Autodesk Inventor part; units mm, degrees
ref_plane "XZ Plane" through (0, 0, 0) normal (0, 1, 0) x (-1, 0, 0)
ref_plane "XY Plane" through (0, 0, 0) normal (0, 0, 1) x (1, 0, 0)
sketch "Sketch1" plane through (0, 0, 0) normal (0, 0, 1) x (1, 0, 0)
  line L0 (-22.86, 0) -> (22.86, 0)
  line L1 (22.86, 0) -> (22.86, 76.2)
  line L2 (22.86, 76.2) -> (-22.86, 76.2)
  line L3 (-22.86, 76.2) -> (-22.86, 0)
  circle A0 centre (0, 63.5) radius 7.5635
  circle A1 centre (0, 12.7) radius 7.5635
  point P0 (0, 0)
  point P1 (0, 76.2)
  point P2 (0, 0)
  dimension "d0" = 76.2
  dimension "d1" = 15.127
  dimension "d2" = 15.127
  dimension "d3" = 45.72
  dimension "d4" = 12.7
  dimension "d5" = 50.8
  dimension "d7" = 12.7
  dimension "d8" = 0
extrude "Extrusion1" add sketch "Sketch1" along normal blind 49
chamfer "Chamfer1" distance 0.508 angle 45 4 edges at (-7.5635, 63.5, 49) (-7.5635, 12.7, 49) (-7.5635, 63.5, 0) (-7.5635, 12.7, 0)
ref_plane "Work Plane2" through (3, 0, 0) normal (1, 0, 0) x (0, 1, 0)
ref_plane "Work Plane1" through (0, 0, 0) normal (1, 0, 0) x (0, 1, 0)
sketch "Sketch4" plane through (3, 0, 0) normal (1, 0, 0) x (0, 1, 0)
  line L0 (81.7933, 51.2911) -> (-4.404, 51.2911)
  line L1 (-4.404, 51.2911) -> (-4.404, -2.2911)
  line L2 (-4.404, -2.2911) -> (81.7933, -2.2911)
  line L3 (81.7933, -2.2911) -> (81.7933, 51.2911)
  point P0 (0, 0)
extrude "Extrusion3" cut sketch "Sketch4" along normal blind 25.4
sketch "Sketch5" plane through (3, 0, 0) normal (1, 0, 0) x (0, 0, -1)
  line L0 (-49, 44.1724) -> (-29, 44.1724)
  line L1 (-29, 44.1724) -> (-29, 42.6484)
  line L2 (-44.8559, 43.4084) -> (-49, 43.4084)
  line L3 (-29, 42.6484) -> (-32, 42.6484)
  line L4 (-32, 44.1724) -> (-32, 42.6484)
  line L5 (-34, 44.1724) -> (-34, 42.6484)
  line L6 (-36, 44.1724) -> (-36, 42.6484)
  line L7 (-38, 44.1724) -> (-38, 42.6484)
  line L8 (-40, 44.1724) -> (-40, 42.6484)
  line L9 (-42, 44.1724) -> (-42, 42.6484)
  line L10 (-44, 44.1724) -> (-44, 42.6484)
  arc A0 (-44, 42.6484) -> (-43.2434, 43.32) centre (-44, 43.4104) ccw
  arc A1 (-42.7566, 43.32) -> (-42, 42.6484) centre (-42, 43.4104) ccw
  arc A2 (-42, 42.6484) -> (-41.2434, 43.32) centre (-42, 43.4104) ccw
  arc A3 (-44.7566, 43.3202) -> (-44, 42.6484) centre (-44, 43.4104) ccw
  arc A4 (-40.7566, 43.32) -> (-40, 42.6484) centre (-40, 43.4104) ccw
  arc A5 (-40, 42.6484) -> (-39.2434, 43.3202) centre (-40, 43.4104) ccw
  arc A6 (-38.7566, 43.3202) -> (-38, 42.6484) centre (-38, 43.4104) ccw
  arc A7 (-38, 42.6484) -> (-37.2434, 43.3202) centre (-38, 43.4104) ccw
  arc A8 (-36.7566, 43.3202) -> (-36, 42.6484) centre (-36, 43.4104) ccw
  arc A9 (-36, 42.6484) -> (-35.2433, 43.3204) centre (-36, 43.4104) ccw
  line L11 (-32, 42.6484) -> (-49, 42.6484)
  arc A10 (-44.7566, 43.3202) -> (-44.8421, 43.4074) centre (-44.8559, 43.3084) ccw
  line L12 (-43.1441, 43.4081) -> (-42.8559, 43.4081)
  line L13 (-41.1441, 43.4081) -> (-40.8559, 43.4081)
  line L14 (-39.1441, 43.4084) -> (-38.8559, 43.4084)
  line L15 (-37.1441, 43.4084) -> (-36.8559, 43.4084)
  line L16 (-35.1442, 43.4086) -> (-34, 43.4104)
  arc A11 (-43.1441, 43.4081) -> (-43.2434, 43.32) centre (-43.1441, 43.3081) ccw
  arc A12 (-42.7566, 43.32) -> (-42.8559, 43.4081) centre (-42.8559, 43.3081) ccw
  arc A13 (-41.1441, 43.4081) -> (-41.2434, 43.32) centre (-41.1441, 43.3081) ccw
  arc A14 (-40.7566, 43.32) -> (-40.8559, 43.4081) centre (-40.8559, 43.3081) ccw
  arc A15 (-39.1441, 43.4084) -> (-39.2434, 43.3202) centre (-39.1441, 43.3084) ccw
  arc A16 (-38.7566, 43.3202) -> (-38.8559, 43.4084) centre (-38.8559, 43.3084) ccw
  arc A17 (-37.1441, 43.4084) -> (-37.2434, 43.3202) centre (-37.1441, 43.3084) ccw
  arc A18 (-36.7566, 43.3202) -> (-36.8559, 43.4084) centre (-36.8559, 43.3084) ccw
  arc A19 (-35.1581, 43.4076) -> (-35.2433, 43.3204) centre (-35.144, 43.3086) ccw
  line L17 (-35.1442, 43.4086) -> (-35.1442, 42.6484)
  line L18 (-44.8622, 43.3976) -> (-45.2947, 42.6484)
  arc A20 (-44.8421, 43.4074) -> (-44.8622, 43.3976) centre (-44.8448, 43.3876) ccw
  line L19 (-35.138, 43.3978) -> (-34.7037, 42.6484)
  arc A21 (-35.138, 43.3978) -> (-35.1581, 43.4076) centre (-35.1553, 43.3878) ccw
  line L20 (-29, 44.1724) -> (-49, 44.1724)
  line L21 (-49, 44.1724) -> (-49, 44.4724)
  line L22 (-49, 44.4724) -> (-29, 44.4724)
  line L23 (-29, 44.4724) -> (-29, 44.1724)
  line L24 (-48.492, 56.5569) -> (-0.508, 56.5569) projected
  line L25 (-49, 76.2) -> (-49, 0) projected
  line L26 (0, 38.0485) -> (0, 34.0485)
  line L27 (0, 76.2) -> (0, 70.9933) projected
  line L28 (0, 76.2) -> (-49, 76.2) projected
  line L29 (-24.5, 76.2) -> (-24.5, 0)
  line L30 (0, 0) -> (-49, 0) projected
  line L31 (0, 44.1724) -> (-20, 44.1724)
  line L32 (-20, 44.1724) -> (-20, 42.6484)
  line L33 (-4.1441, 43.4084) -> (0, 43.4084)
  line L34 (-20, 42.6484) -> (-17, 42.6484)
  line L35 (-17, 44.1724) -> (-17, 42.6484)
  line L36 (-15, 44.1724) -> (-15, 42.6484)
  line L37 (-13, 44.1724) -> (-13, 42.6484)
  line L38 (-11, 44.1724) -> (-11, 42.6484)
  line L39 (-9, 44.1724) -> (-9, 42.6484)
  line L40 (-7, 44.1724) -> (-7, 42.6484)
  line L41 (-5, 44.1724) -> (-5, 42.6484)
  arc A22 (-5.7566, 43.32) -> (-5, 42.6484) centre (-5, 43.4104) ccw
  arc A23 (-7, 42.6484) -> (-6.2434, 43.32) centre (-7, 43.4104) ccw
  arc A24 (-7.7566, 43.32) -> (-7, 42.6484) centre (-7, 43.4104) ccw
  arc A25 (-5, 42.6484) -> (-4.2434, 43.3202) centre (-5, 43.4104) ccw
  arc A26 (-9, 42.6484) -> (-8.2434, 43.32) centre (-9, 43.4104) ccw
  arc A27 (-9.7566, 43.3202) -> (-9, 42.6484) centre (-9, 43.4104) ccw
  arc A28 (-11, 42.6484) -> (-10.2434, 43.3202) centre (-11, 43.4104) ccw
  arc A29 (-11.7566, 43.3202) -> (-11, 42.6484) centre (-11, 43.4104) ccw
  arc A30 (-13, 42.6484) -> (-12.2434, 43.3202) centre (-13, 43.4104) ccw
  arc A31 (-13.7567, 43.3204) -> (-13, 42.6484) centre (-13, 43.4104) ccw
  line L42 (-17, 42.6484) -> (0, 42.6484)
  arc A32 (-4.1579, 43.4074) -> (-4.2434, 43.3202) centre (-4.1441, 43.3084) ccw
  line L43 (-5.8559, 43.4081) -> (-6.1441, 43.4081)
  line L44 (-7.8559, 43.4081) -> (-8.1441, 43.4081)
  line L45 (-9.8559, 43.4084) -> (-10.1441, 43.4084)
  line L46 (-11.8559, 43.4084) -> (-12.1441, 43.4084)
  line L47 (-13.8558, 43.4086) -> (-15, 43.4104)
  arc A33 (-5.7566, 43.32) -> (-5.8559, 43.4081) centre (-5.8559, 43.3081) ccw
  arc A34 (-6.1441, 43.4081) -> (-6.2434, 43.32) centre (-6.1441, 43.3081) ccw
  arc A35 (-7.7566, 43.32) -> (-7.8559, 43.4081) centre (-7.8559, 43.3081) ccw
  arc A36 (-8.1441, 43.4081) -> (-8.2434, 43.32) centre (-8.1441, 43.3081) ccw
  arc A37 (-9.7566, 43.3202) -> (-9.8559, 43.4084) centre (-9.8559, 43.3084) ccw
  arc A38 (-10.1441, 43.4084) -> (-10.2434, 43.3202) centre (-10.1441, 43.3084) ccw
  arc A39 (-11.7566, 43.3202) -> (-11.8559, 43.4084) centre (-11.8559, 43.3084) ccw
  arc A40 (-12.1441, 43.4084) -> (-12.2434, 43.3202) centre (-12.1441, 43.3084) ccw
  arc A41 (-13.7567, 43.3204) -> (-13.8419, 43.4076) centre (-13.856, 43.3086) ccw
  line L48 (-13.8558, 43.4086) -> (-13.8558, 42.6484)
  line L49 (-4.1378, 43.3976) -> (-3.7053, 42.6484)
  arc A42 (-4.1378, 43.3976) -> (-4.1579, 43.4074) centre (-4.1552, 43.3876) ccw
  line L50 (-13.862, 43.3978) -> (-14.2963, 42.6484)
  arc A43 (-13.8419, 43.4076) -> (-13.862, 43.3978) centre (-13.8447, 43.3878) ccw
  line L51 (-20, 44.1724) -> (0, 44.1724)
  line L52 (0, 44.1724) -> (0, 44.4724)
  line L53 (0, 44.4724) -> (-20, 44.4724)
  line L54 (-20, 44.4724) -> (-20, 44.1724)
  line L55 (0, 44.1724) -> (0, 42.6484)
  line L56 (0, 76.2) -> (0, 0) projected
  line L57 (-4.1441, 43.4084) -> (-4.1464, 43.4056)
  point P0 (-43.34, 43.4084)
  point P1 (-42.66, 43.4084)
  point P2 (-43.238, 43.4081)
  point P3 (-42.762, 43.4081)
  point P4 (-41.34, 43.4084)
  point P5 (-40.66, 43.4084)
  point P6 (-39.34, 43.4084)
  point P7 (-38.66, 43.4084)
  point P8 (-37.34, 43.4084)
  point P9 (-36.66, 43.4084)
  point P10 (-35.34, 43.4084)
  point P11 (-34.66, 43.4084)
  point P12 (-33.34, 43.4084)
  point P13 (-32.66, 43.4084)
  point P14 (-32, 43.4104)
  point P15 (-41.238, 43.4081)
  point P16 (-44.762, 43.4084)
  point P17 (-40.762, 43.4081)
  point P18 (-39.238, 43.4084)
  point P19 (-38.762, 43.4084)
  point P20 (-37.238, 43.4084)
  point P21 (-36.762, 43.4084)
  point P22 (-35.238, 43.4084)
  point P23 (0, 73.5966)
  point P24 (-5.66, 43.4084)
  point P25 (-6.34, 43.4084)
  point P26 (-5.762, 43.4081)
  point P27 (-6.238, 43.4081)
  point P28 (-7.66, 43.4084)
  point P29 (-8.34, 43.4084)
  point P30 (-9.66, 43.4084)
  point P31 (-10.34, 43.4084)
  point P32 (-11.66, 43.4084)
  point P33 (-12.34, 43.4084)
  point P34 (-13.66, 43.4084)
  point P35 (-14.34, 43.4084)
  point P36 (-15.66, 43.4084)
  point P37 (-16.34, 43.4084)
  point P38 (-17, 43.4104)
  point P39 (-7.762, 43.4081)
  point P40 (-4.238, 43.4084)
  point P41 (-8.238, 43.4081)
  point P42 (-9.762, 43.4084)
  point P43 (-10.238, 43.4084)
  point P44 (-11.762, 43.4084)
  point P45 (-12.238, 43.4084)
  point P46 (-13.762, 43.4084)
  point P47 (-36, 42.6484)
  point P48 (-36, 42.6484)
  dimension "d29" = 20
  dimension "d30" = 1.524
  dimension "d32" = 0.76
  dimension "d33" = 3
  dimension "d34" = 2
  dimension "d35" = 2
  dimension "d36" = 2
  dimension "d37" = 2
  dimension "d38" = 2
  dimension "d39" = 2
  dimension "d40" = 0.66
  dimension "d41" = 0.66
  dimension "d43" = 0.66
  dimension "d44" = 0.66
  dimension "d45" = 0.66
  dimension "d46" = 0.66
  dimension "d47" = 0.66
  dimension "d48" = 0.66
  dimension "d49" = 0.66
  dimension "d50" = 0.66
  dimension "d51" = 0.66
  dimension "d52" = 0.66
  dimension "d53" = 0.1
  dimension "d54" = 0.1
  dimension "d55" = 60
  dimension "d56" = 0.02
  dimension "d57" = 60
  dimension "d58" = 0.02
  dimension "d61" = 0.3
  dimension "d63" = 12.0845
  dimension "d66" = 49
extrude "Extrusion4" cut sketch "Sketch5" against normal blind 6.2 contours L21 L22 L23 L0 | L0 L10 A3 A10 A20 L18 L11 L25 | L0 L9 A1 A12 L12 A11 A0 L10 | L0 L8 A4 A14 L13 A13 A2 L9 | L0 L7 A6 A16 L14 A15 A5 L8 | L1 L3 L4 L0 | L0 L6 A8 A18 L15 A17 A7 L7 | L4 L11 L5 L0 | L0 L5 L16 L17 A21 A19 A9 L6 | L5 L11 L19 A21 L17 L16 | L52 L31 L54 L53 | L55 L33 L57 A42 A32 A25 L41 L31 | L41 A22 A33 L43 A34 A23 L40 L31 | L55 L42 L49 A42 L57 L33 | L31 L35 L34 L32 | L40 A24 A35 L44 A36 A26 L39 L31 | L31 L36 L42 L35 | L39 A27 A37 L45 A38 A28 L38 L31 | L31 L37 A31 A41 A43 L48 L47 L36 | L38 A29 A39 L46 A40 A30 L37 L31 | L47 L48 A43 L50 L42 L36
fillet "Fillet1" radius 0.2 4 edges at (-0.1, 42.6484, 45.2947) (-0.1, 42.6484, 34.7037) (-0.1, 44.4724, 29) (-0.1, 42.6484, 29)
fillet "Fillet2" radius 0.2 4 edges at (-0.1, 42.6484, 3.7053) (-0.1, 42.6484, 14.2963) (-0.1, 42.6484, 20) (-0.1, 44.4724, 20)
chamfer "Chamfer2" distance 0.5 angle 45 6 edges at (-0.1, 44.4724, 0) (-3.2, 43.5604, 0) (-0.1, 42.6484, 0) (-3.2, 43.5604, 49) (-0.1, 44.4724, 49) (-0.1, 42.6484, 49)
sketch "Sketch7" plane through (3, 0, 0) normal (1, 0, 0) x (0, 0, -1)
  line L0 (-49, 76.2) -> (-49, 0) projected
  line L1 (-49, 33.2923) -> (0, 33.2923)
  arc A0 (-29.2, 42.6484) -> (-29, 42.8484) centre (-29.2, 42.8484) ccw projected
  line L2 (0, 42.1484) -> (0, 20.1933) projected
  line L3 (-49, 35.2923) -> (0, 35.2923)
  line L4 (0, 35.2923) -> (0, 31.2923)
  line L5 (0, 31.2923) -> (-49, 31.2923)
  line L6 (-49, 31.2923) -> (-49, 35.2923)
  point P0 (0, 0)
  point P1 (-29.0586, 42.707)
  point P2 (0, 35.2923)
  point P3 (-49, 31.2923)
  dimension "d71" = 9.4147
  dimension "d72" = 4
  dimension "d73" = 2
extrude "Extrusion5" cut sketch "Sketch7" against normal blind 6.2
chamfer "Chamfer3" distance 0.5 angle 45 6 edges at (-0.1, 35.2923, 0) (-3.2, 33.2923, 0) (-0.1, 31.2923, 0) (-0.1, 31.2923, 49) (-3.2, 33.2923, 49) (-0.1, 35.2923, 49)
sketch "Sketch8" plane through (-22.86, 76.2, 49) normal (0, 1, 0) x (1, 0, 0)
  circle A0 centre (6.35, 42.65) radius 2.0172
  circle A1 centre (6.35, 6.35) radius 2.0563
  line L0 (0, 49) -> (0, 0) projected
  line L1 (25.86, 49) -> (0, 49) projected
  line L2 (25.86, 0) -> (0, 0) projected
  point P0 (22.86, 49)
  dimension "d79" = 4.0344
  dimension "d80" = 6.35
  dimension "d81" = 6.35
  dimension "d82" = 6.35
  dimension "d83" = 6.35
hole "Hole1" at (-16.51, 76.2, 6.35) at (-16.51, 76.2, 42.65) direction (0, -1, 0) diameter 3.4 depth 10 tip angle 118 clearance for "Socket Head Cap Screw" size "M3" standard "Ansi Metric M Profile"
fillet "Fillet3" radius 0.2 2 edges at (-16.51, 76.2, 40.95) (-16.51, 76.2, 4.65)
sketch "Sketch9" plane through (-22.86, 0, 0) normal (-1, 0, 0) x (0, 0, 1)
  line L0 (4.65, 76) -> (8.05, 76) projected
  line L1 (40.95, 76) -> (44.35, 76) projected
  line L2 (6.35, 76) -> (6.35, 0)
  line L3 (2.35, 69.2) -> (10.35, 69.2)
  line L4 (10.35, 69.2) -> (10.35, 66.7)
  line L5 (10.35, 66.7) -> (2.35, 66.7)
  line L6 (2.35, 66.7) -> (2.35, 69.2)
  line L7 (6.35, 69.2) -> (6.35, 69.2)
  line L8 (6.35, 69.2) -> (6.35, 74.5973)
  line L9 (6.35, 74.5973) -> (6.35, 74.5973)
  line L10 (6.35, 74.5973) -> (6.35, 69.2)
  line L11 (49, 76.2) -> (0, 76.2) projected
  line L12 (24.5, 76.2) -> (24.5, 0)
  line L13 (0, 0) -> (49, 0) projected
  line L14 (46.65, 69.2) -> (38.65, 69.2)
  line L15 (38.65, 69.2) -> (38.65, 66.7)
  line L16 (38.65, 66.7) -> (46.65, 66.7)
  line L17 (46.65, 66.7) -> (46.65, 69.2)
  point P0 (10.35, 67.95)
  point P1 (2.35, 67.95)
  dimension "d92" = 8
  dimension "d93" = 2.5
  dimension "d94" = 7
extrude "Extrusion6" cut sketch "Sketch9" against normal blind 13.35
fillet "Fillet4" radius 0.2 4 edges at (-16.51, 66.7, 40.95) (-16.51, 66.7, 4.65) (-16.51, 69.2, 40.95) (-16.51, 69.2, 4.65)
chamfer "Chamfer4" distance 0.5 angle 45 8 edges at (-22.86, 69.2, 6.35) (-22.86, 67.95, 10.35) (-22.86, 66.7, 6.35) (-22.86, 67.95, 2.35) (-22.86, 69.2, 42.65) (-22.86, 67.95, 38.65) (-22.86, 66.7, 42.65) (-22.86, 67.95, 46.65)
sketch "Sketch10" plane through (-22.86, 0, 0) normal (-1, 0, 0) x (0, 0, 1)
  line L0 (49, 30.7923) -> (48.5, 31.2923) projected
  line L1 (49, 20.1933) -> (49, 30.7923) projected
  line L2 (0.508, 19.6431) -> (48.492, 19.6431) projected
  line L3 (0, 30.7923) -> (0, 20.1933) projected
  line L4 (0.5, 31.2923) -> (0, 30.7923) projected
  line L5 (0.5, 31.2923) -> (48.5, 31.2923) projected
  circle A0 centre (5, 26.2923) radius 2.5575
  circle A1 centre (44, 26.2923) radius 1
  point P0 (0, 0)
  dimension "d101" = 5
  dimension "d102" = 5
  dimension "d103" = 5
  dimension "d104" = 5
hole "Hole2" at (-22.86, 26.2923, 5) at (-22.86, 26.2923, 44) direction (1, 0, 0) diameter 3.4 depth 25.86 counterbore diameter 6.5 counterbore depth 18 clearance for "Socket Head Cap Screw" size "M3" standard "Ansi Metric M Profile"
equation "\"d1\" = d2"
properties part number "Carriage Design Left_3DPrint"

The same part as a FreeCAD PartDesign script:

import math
import FreeCAD as App
import Part
import Sketcher

V = App.Vector


def edges_at(feature, points):
    """Names of the edges that pass closest to the given points."""
    edges = feature.Shape.Edges
    near = lambda p: min(range(len(edges)), key=lambda i: edges[i].distToShape(Part.Vertex(*p))[0])
    return sorted({f"Edge{near(p) + 1}" for p in points})


def add_polygon(sketch, points):
    """Adds a closed chain of lines whose ends are joined by coincident constraints."""
    first, n = sketch.GeometryCount, len(points)
    for a, b in zip(points, points[1:] + points[:1]):
        sketch.addGeometry(Part.LineSegment(App.Vector(*a, 0), App.Vector(*b, 0)), False)
    for i in range(n):
        sketch.addConstraint(Sketcher.Constraint("Coincident", first + i, 2, first + (i + 1) % n, 1))

doc = App.newDocument("Part")
body = doc.addObject("PartDesign::Body", "Body")

# Sketch on XY plane
sketch1 = body.newObject("Sketcher::SketchObject", "Sketch")
sketch1.AttachmentSupport = (doc.getObject("XY_Plane"), [""])
sketch1.MapMode = "FlatFace"
add_polygon(sketch1, [(-23, 76), (-23, 0), (23, 0), (23, 76)])  # lines 0-3
sketch1.addGeometry(Part.Circle(V(0, 13, 0), V(0, 0, 1), 8), False)  # 4
sketch1.addGeometry(Part.Circle(V(0, 64, 0), V(0, 0, 1), 8), False)  # 5
sketch1.addConstraint(Sketcher.Constraint("Vertical", 0))
sketch1.addConstraint(Sketcher.Constraint("Horizontal", 1))
sketch1.addConstraint(Sketcher.Constraint("Vertical", 2))
sketch1.addConstraint(Sketcher.Constraint("Horizontal", 3))
sketch1.addConstraint(Sketcher.Constraint("Equal", 4, 5))
sketch1.addConstraint(Sketcher.Constraint("Symmetric", 0, 2, 1, 2, -1, 1))
sketch1.addConstraint(Sketcher.Constraint("PointOnObject", 4, 3, -2))
sketch1.addConstraint(Sketcher.Constraint("PointOnObject", 5, 3, -2))
sketch1.addConstraint(Sketcher.Constraint("Diameter", 4, 15.127))
sketch1.addConstraint(Sketcher.Constraint("DistanceY", 0, 2, 0, 1, 76.2))
sketch1.addConstraint(Sketcher.Constraint("DistanceX", 1, 1, 1, 2, 45.72))
sketch1.addConstraint(Sketcher.Constraint("DistanceY", -1, 1, 4, 3, 12.7))
sketch1.addConstraint(Sketcher.Constraint("DistanceY", 4, 3, 5, 3, 50.8))
pad1 = body.newObject("PartDesign::Pad", "Pad")
pad1.Profile = sketch1
pad1.Length = 49
doc.recompute()

chamfer = body.newObject("PartDesign::Chamfer", "Chamfer")
chamfer.Base = (pad1, edges_at(pad1, [
    (-7.564, 63.5, 49),
    (-7.564, 12.7, 49),
    (-7.564, 63.5, 0),
    (-7.564, 12.7, 0),
]))
chamfer.Size = 0.508

# Sketch on YZ plane
sketch2 = body.newObject("Sketcher::SketchObject", "Sketch001")
sketch2.AttachmentSupport = (doc.getObject("YZ_Plane"), [""])
sketch2.MapMode = "FlatFace"
sketch2.AttachmentOffset = App.Placement(V(0, 0, 3), App.Rotation())
add_polygon(sketch2, [(82, -2), (82, 51), (-4, 51), (-4, -2)])  # lines 0-3
sketch2.addConstraint(Sketcher.Constraint("Vertical", 0))
sketch2.addConstraint(Sketcher.Constraint("Horizontal", 1))
sketch2.addConstraint(Sketcher.Constraint("Vertical", 2))
sketch2.addConstraint(Sketcher.Constraint("Horizontal", 3))
sketch2.addConstraint(Sketcher.Constraint("DistanceX", 1, 2, 1, 1, 86.1973))
sketch2.addConstraint(Sketcher.Constraint("DistanceY", 0, 1, 0, 2, 53.5822))
sketch2.addConstraint(Sketcher.Constraint("DistanceY", -1, 1, 0, 2, 51.291))
sketch2.addConstraint(Sketcher.Constraint("DistanceX", 1, 2, -1, 1, 4.404))
pocket1 = body.newObject("PartDesign::Pocket", "Pocket")
pocket1.Profile = sketch2
pocket1.Length = 25.4
pocket1.Reversed = True

# Sketch on YZ plane
sketch3 = body.newObject("Sketcher::SketchObject", "Sketch002")
sketch3.AttachmentSupport = (doc.getObject("YZ_Plane"), [""])
sketch3.MapMode = "FlatFace"
sketch3.AttachmentOffset = App.Placement(V(0, 0, 3), App.Rotation())
sketch3.addGeometry(Part.LineSegment(V(44.472, 49, 0), V(42.648, 49, 0)), False)
sketch3.addGeometry(Part.LineSegment(V(42.648, 49, 0), V(42.648, 45.295, 0)), False)
sketch3.addGeometry(Part.LineSegment(V(42.648, 45.295, 0), V(43.398, 44.862, 0)), False)
sketch3.addGeometry(Part.ArcOfCircle(Part.Circle(V(43.388, 44.845, 0), V(0, 0, 1), 0.02), math.radians(-8), math.radians(60)), False)
sketch3.addGeometry(Part.ArcOfCircle(Part.Circle(V(43.308, 44.856, 0), V(0, 0, 1), 0.1), math.radians(-83), math.radians(-8)), False)
sketch3.addGeometry(Part.ArcOfCircle(Part.Circle(V(43.41, 44, 0), V(0, 0, 1), 0.762), math.radians(97), math.radians(180)), False)
sketch3.addGeometry(Part.ArcOfCircle(Part.Circle(V(43.41, 44, 0), V(0, 0, 1), 0.762), math.radians(180), math.radians(263)), False)
sketch3.addGeometry(Part.ArcOfCircle(Part.Circle(V(43.308, 43.144, 0), V(0, 0, 1), 0.1), math.radians(0), math.radians(83)), False)
sketch3.addGeometry(Part.LineSegment(V(43.408, 43.144, 0), V(43.408, 42.856, 0)), False)
sketch3.addGeometry(Part.ArcOfCircle(Part.Circle(V(43.308, 42.856, 0), V(0, 0, 1), 0.1), math.radians(-83), math.radians(0)), False)
sketch3.addGeometry(Part.ArcOfCircle(Part.Circle(V(43.41, 42, 0), V(0, 0, 1), 0.762), math.radians(97), math.radians(180)), False)
sketch3.addGeometry(Part.ArcOfCircle(Part.Circle(V(43.41, 42, 0), V(0, 0, 1), 0.762), math.radians(180), math.radians(263)), False)
sketch3.addGeometry(Part.ArcOfCircle(Part.Circle(V(43.308, 41.144, 0), V(0, 0, 1), 0.1), math.radians(0), math.radians(83)), False)
sketch3.addGeometry(Part.LineSegment(V(43.408, 41.144, 0), V(43.408, 40.856, 0)), False)
sketch3.addGeometry(Part.ArcOfCircle(Part.Circle(V(43.308, 40.856, 0), V(0, 0, 1), 0.1), math.radians(-83), math.radians(0)), False)
sketch3.addGeometry(Part.ArcOfCircle(Part.Circle(V(43.41, 40, 0), V(0, 0, 1), 0.762), math.radians(97), math.radians(180)), False)
sketch3.addGeometry(Part.ArcOfCircle(Part.Circle(V(43.41, 40, 0), V(0, 0, 1), 0.762), math.radians(180), math.radians(263)), False)
sketch3.addGeometry(Part.ArcOfCircle(Part.Circle(V(43.308, 39.144, 0), V(0, 0, 1), 0.1), math.radians(0), math.radians(83)), False)
sketch3.addGeometry(Part.LineSegment(V(43.408, 39.144, 0), V(43.408, 38.856, 0)), False)
sketch3.addGeometry(Part.ArcOfCircle(Part.Circle(V(43.308, 38.856, 0), V(0, 0, 1), 0.1), math.radians(-83), math.radians(0)), False)
sketch3.addGeometry(Part.ArcOfCircle(Part.Circle(V(43.41, 38, 0), V(0, 0, 1), 0.762), math.radians(97), math.radians(180)), False)
sketch3.addGeometry(Part.ArcOfCircle(Part.Circle(V(43.41, 38, 0), V(0, 0, 1), 0.762), math.radians(180), math.radians(263)), False)
sketch3.addGeometry(Part.ArcOfCircle(Part.Circle(V(43.308, 37.144, 0), V(0, 0, 1), 0.1), math.radians(0), math.radians(83)), False)
sketch3.addGeometry(Part.LineSegment(V(43.408, 37.144, 0), V(43.408, 36.856, 0)), False)
sketch3.addGeometry(Part.ArcOfCircle(Part.Circle(V(43.308, 36.856, 0), V(0, 0, 1), 0.1), math.radians(-83), math.radians(0)), False)
sketch3.addGeometry(Part.ArcOfCircle(Part.Circle(V(43.41, 36, 0), V(0, 0, 1), 0.762), math.radians(97), math.radians(180)), False)
sketch3.addGeometry(Part.ArcOfCircle(Part.Circle(V(43.41, 36, 0), V(0, 0, 1), 0.762), math.radians(180), math.radians(263)), False)
sketch3.addGeometry(Part.ArcOfCircle(Part.Circle(V(43.309, 35.144, 0), V(0, 0, 1), 0.1), math.radians(8), math.radians(83)), False)
sketch3.addGeometry(Part.ArcOfCircle(Part.Circle(V(43.388, 35.155, 0), V(0, 0, 1), 0.02), math.radians(-60), math.radians(8)), False)
sketch3.addGeometry(Part.LineSegment(V(43.398, 35.138, 0), V(42.648, 34.704, 0)), False)
sketch3.addGeometry(Part.LineSegment(V(42.648, 34.704, 0), V(42.648, 29, 0)), False)
sketch3.addGeometry(Part.LineSegment(V(42.648, 29, 0), V(44.472, 29, 0)), False)
sketch3.addGeometry(Part.LineSegment(V(44.472, 29, 0), V(44.472, 49, 0)), False)
sketch3.addGeometry(Part.LineSegment(V(44.472, 0, 0), V(44.472, 20, 0)), False)
sketch3.addGeometry(Part.LineSegment(V(44.472, 20, 0), V(42.648, 20, 0)), False)
sketch3.addGeometry(Part.LineSegment(V(42.648, 20, 0), V(42.648, 14.296, 0)), False)
sketch3.addGeometry(Part.LineSegment(V(42.648, 14.296, 0), V(43.398, 13.862, 0)), False)
sketch3.addGeometry(Part.ArcOfCircle(Part.Circle(V(43.388, 13.845, 0), V(0, 0, 1), 0.02), math.radians(-8), math.radians(60)), False)
sketch3.addGeometry(Part.ArcOfCircle(Part.Circle(V(43.309, 13.856, 0), V(0, 0, 1), 0.1), math.radians(-83), math.radians(-8)), False)
sketch3.addGeometry(Part.ArcOfCircle(Part.Circle(V(43.41, 13, 0), V(0, 0, 1), 0.762), math.radians(97), math.radians(180)), False)
sketch3.addGeometry(Part.ArcOfCircle(Part.Circle(V(43.41, 13, 0), V(0, 0, 1), 0.762), math.radians(180), math.radians(263)), False)
sketch3.addGeometry(Part.ArcOfCircle(Part.Circle(V(43.308, 12.144, 0), V(0, 0, 1), 0.1), math.radians(0), math.radians(83)), False)
sketch3.addGeometry(Part.LineSegment(V(43.408, 12.144, 0), V(43.408, 11.856, 0)), False)
sketch3.addGeometry(Part.ArcOfCircle(Part.Circle(V(43.308, 11.856, 0), V(0, 0, 1), 0.1), math.radians(-83), math.radians(0)), False)
sketch3.addGeometry(Part.ArcOfCircle(Part.Circle(V(43.41, 11, 0), V(0, 0, 1), 0.762), math.radians(97), math.radians(180)), False)
sketch3.addGeometry(Part.ArcOfCircle(Part.Circle(V(43.41, 11, 0), V(0, 0, 1), 0.762), math.radians(180), math.radians(263)), False)
sketch3.addGeometry(Part.ArcOfCircle(Part.Circle(V(43.308, 10.144, 0), V(0, 0, 1), 0.1), math.radians(0), math.radians(83)), False)
sketch3.addGeometry(Part.LineSegment(V(43.408, 10.144, 0), V(43.408, 9.856, 0)), False)
sketch3.addGeometry(Part.ArcOfCircle(Part.Circle(V(43.308, 9.856, 0), V(0, 0, 1), 0.1), math.radians(-83), math.radians(0)), False)
sketch3.addGeometry(Part.ArcOfCircle(Part.Circle(V(43.41, 9, 0), V(0, 0, 1), 0.762), math.radians(97), math.radians(180)), False)
sketch3.addGeometry(Part.ArcOfCircle(Part.Circle(V(43.41, 9, 0), V(0, 0, 1), 0.762), math.radians(180), math.radians(263)), False)
sketch3.addGeometry(Part.ArcOfCircle(Part.Circle(V(43.308, 8.144, 0), V(0, 0, 1), 0.1), math.radians(0), math.radians(83)), False)
sketch3.addGeometry(Part.LineSegment(V(43.408, 8.144, 0), V(43.408, 7.856, 0)), False)
sketch3.addGeometry(Part.ArcOfCircle(Part.Circle(V(43.308, 7.856, 0), V(0, 0, 1), 0.1), math.radians(-83), math.radians(0)), False)
sketch3.addGeometry(Part.ArcOfCircle(Part.Circle(V(43.41, 7, 0), V(0, 0, 1), 0.762), math.radians(97), math.radians(180)), False)
sketch3.addGeometry(Part.ArcOfCircle(Part.Circle(V(43.41, 7, 0), V(0, 0, 1), 0.762), math.radians(180), math.radians(263)), False)
sketch3.addGeometry(Part.ArcOfCircle(Part.Circle(V(43.308, 6.144, 0), V(0, 0, 1), 0.1), math.radians(0), math.radians(83)), False)
sketch3.addGeometry(Part.LineSegment(V(43.408, 6.144, 0), V(43.408, 5.856, 0)), False)
sketch3.addGeometry(Part.ArcOfCircle(Part.Circle(V(43.308, 5.856, 0), V(0, 0, 1), 0.1), math.radians(-83), math.radians(0)), False)
sketch3.addGeometry(Part.ArcOfCircle(Part.Circle(V(43.41, 5, 0), V(0, 0, 1), 0.762), math.radians(97), math.radians(180)), False)
sketch3.addGeometry(Part.ArcOfCircle(Part.Circle(V(43.41, 5, 0), V(0, 0, 1), 0.762), math.radians(180), math.radians(263)), False)
sketch3.addGeometry(Part.ArcOfCircle(Part.Circle(V(43.308, 4.144, 0), V(0, 0, 1), 0.1), math.radians(8), math.radians(83)), False)
sketch3.addGeometry(Part.ArcOfCircle(Part.Circle(V(43.388, 4.155, 0), V(0, 0, 1), 0.02), math.radians(-60), math.radians(8)), False)
sketch3.addGeometry(Part.LineSegment(V(43.398, 4.138, 0), V(42.648, 3.705, 0)), False)
sketch3.addGeometry(Part.LineSegment(V(42.648, 3.705, 0), V(42.648, 0, 0)), False)
sketch3.addGeometry(Part.LineSegment(V(42.648, 0, 0), V(44.472, 0, 0)), False)
sketch3.addConstraint(Sketcher.Constraint("Coincident", 0, 2, 1, 1))
sketch3.addConstraint(Sketcher.Constraint("Coincident", 1, 2, 2, 1))
sketch3.addConstraint(Sketcher.Constraint("Coincident", 2, 2, 3, 2))
sketch3.addConstraint(Sketcher.Constraint("Coincident", 3, 1, 4, 2))
sketch3.addConstraint(Sketcher.Constraint("Tangent", 4, 1, 5, 1))
sketch3.addConstraint(Sketcher.Constraint("Tangent", 5, 2, 6, 1))
sketch3.addConstraint(Sketcher.Constraint("Tangent", 6, 2, 7, 2))
sketch3.addConstraint(Sketcher.Constraint("Tangent", 7, 1, 8, 1))
sketch3.addConstraint(Sketcher.Constraint("Tangent", 8, 2, 9, 2))
sketch3.addConstraint(Sketcher.Constraint("Tangent", 9, 1, 10, 1))
sketch3.addConstraint(Sketcher.Constraint("Tangent", 10, 2, 11, 1))
sketch3.addConstraint(Sketcher.Constraint("Tangent", 11, 2, 12, 2))
sketch3.addConstraint(Sketcher.Constraint("Tangent", 12, 1, 13, 1))
sketch3.addConstraint(Sketcher.Constraint("Tangent", 13, 2, 14, 2))
sketch3.addConstraint(Sketcher.Constraint("Tangent", 14, 1, 15, 1))
sketch3.addConstraint(Sketcher.Constraint("Tangent", 15, 2, 16, 1))
sketch3.addConstraint(Sketcher.Constraint("Tangent", 16, 2, 17, 2))
sketch3.addConstraint(Sketcher.Constraint("Tangent", 17, 1, 18, 1))
sketch3.addConstraint(Sketcher.Constraint("Tangent", 18, 2, 19, 2))
sketch3.addConstraint(Sketcher.Constraint("Tangent", 19, 1, 20, 1))
sketch3.addConstraint(Sketcher.Constraint("Tangent", 20, 2, 21, 1))
sketch3.addConstraint(Sketcher.Constraint("Tangent", 21, 2, 22, 2))
sketch3.addConstraint(Sketcher.Constraint("Tangent", 22, 1, 23, 1))
sketch3.addConstraint(Sketcher.Constraint("Tangent", 23, 2, 24, 2))
sketch3.addConstraint(Sketcher.Constraint("Tangent", 24, 1, 25, 1))
sketch3.addConstraint(Sketcher.Constraint("Tangent", 25, 2, 26, 1))
sketch3.addConstraint(Sketcher.Constraint("Tangent", 26, 2, 27, 2))
sketch3.addConstraint(Sketcher.Constraint("Coincident", 27, 1, 28, 2))
sketch3.addConstraint(Sketcher.Constraint("Coincident", 28, 1, 29, 1))
sketch3.addConstraint(Sketcher.Constraint("Coincident", 29, 2, 30, 1))
sketch3.addConstraint(Sketcher.Constraint("Coincident", 30, 2, 31, 1))
sketch3.addConstraint(Sketcher.Constraint("Coincident", 31, 2, 32, 1))
sketch3.addConstraint(Sketcher.Constraint("Coincident", 32, 2, 0, 1))
sketch3.addConstraint(Sketcher.Constraint("Coincident", 33, 2, 34, 1))
sketch3.addConstraint(Sketcher.Constraint("Coincident", 34, 2, 35, 1))
sketch3.addConstraint(Sketcher.Constraint("Coincident", 35, 2, 36, 1))
sketch3.addConstraint(Sketcher.Constraint("Coincident", 36, 2, 37, 2))
sketch3.addConstraint(Sketcher.Constraint("Coincident", 37, 1, 38, 2))
sketch3.addConstraint(Sketcher.Constraint("Tangent", 38, 1, 39, 1))
sketch3.addConstraint(Sketcher.Constraint("Tangent", 39, 2, 40, 1))
sketch3.addConstraint(Sketcher.Constraint("Tangent", 40, 2, 41, 2))
sketch3.addConstraint(Sketcher.Constraint("Tangent", 41, 1, 42, 1))
sketch3.addConstraint(Sketcher.Constraint("Tangent", 42, 2, 43, 2))
sketch3.addConstraint(Sketcher.Constraint("Tangent", 43, 1, 44, 1))
sketch3.addConstraint(Sketcher.Constraint("Tangent", 44, 2, 45, 1))
sketch3.addConstraint(Sketcher.Constraint("Tangent", 45, 2, 46, 2))
sketch3.addConstraint(Sketcher.Constraint("Tangent", 46, 1, 47, 1))
sketch3.addConstraint(Sketcher.Constraint("Tangent", 47, 2, 48, 2))
sketch3.addConstraint(Sketcher.Constraint("Tangent", 48, 1, 49, 1))
sketch3.addConstraint(Sketcher.Constraint("Tangent", 49, 2, 50, 1))
sketch3.addConstraint(Sketcher.Constraint("Tangent", 50, 2, 51, 2))
sketch3.addConstraint(Sketcher.Constraint("Tangent", 51, 1, 52, 1))
sketch3.addConstraint(Sketcher.Constraint("Tangent", 52, 2, 53, 2))
sketch3.addConstraint(Sketcher.Constraint("Tangent", 53, 1, 54, 1))
sketch3.addConstraint(Sketcher.Constraint("Tangent", 54, 2, 55, 1))
sketch3.addConstraint(Sketcher.Constraint("Tangent", 55, 2, 56, 2))
sketch3.addConstraint(Sketcher.Constraint("Tangent", 56, 1, 57, 1))
sketch3.addConstraint(Sketcher.Constraint("Tangent", 57, 2, 58, 2))
sketch3.addConstraint(Sketcher.Constraint("Tangent", 58, 1, 59, 1))
sketch3.addConstraint(Sketcher.Constraint("Tangent", 59, 2, 60, 1))
sketch3.addConstraint(Sketcher.Constraint("Tangent", 60, 2, 61, 2))
sketch3.addConstraint(Sketcher.Constraint("Coincident", 61, 1, 62, 2))
sketch3.addConstraint(Sketcher.Constraint("Coincident", 62, 1, 63, 1))
sketch3.addConstraint(Sketcher.Constraint("Coincident", 63, 2, 64, 1))
sketch3.addConstraint(Sketcher.Constraint("Coincident", 64, 2, 65, 1))
sketch3.addConstraint(Sketcher.Constraint("Coincident", 65, 2, 33, 1))
sketch3.addConstraint(Sketcher.Constraint("Horizontal", 0))
sketch3.addConstraint(Sketcher.Constraint("Vertical", 1))
sketch3.addConstraint(Sketcher.Constraint("Vertical", 8))
sketch3.addConstraint(Sketcher.Constraint("Vertical", 13))
sketch3.addConstraint(Sketcher.Constraint("Vertical", 18))
sketch3.addConstraint(Sketcher.Constraint("Vertical", 23))
sketch3.addConstraint(Sketcher.Constraint("Vertical", 30))
sketch3.addConstraint(Sketcher.Constraint("Horizontal", 31))
sketch3.addConstraint(Sketcher.Constraint("Vertical", 32))
sketch3.addConstraint(Sketcher.Constraint("Vertical", 33))
sketch3.addConstraint(Sketcher.Constraint("Horizontal", 34))
sketch3.addConstraint(Sketcher.Constraint("Vertical", 35))
sketch3.addConstraint(Sketcher.Constraint("Vertical", 42))
sketch3.addConstraint(Sketcher.Constraint("Vertical", 47))
sketch3.addConstraint(Sketcher.Constraint("Vertical", 52))
sketch3.addConstraint(Sketcher.Constraint("Vertical", 57))
sketch3.addConstraint(Sketcher.Constraint("Vertical", 64))
sketch3.addConstraint(Sketcher.Constraint("Horizontal", 65))
sketch3.addConstraint(Sketcher.Constraint("Equal", 5, 6))
sketch3.addConstraint(Sketcher.Constraint("Equal", 4, 7))
sketch3.addConstraint(Sketcher.Constraint("Equal", 7, 9))
sketch3.addConstraint(Sketcher.Constraint("Equal", 6, 10))
sketch3.addConstraint(Sketcher.Constraint("Equal", 10, 11))
sketch3.addConstraint(Sketcher.Constraint("Equal", 9, 12))
sketch3.addConstraint(Sketcher.Constraint("Equal", 12, 14))
sketch3.addConstraint(Sketcher.Constraint("Equal", 11, 15))
sketch3.addConstraint(Sketcher.Constraint("Equal", 15, 16))
sketch3.addConstraint(Sketcher.Constraint("Equal", 14, 17))
sketch3.addConstraint(Sketcher.Constraint("Equal", 17, 19))
sketch3.addConstraint(Sketcher.Constraint("Equal", 16, 20))
sketch3.addConstraint(Sketcher.Constraint("Equal", 20, 21))
sketch3.addConstraint(Sketcher.Constraint("Equal", 19, 22))
sketch3.addConstraint(Sketcher.Constraint("Equal", 22, 24))
sketch3.addConstraint(Sketcher.Constraint("Equal", 21, 25))
sketch3.addConstraint(Sketcher.Constraint("Equal", 25, 26))
sketch3.addConstraint(Sketcher.Constraint("Equal", 24, 27))
sketch3.addConstraint(Sketcher.Constraint("Equal", 3, 28))
sketch3.addConstraint(Sketcher.Constraint("Equal", 28, 37))
sketch3.addConstraint(Sketcher.Constraint("Equal", 27, 38))
sketch3.addConstraint(Sketcher.Constraint("Equal", 26, 39))
sketch3.addConstraint(Sketcher.Constraint("Equal", 39, 40))
sketch3.addConstraint(Sketcher.Constraint("Equal", 38, 41))
sketch3.addConstraint(Sketcher.Constraint("Equal", 41, 43))
sketch3.addConstraint(Sketcher.Constraint("Equal", 40, 44))
sketch3.addConstraint(Sketcher.Constraint("Equal", 44, 45))
sketch3.addConstraint(Sketcher.Constraint("Equal", 43, 46))
sketch3.addConstraint(Sketcher.Constraint("Equal", 46, 48))
sketch3.addConstraint(Sketcher.Constraint("Equal", 45, 49))
sketch3.addConstraint(Sketcher.Constraint("Equal", 49, 50))
sketch3.addConstraint(Sketcher.Constraint("Equal", 48, 51))
sketch3.addConstraint(Sketcher.Constraint("Equal", 51, 53))
sketch3.addConstraint(Sketcher.Constraint("Equal", 50, 54))
sketch3.addConstraint(Sketcher.Constraint("Equal", 54, 55))
sketch3.addConstraint(Sketcher.Constraint("Equal", 53, 56))
sketch3.addConstraint(Sketcher.Constraint("Equal", 56, 58))
sketch3.addConstraint(Sketcher.Constraint("Equal", 55, 59))
sketch3.addConstraint(Sketcher.Constraint("Equal", 59, 60))
sketch3.addConstraint(Sketcher.Constraint("Equal", 58, 61))
sketch3.addConstraint(Sketcher.Constraint("Equal", 37, 62))
sketch3.addConstraint(Sketcher.Constraint("PointOnObject", 64, 2, -1))
sketch3.addConstraint(Sketcher.Constraint("Horizontal", 6, 3, 5, 2))
sketch3.addConstraint(Sketcher.Constraint("Horizontal", 11, 3, 10, 2))
sketch3.addConstraint(Sketcher.Constraint("Horizontal", 16, 3, 15, 2))
sketch3.addConstraint(Sketcher.Constraint("Horizontal", 21, 3, 20, 2))
sketch3.addConstraint(Sketcher.Constraint("Horizontal", 26, 3, 25, 2))
sketch3.addConstraint(Sketcher.Constraint("Horizontal", 40, 3, 39, 2))
sketch3.addConstraint(Sketcher.Constraint("Horizontal", 45, 3, 44, 2))
sketch3.addConstraint(Sketcher.Constraint("Horizontal", 50, 3, 49, 2))
sketch3.addConstraint(Sketcher.Constraint("Horizontal", 55, 3, 54, 2))
sketch3.addConstraint(Sketcher.Constraint("Horizontal", 60, 3, 59, 2))
sketch3.addConstraint(Sketcher.Constraint("Vertical", 6, 3, 10, 3))
sketch3.addConstraint(Sketcher.Constraint("Vertical", 9, 3, 12, 3))
sketch3.addConstraint(Sketcher.Constraint("Vertical", 11, 3, 15, 3))
sketch3.addConstraint(Sketcher.Constraint("Vertical", 4, 3, 17, 3))
sketch3.addConstraint(Sketcher.Constraint("Vertical", 16, 3, 20, 3))
sketch3.addConstraint(Sketcher.Constraint("Vertical", 19, 3, 22, 3))
sketch3.addConstraint(Sketcher.Constraint("Vertical", 21, 3, 25, 3))
sketch3.addConstraint(Sketcher.Constraint("Vertical", 24, 3, 27, 3))
sketch3.addConstraint(Sketcher.Constraint("Vertical", 3, 3, 28, 3))
sketch3.addConstraint(Sketcher.Constraint("Vertical", 28, 3, 37, 3))
sketch3.addConstraint(Sketcher.Constraint("Vertical", 27, 3, 38, 3))
sketch3.addConstraint(Sketcher.Constraint("Vertical", 26, 3, 39, 3))
sketch3.addConstraint(Sketcher.Constraint("Vertical", 38, 3, 41, 3))
sketch3.addConstraint(Sketcher.Constraint("Vertical", 40, 3, 44, 3))
sketch3.addConstraint(Sketcher.Constraint("Vertical", 43, 3, 46, 3))
sketch3.addConstraint(Sketcher.Constraint("Vertical", 45, 3, 49, 3))
sketch3.addConstraint(Sketcher.Constraint("Vertical", 14, 3, 51, 3))
sketch3.addConstraint(Sketcher.Constraint("Vertical", 50, 3, 54, 3))
sketch3.addConstraint(Sketcher.Constraint("Vertical", 53, 3, 56, 3))
sketch3.addConstraint(Sketcher.Constraint("Vertical", 55, 3, 59, 3))
sketch3.addConstraint(Sketcher.Constraint("Vertical", 48, 3, 61, 3))
sketch3.addConstraint(Sketcher.Constraint("Vertical", 37, 3, 62, 3))
sketch3.addConstraint(Sketcher.Constraint("Vertical", 1, 2, 5, 2))
sketch3.addConstraint(Sketcher.Constraint("Vertical", 4, 1, 6, 2))
sketch3.addConstraint(Sketcher.Constraint("Vertical", 2, 2, 28, 1))
sketch3.addConstraint(Sketcher.Constraint("Vertical", 25, 2, 29, 2))
sketch3.addConstraint(Sketcher.Constraint("Vertical", 32, 2, 33, 2))
sketch3.addConstraint(Sketcher.Constraint("Vertical", 30, 2, 34, 2))
sketch3.addConstraint(Sketcher.Constraint("Vertical", 28, 1, 36, 2))
sketch3.addConstraint(Sketcher.Constraint("Vertical", 36, 2, 62, 1))
sketch3.addConstraint(Sketcher.Constraint("Vertical", 59, 2, 63, 2))
sketch3.addConstraint(Sketcher.Constraint("Equal", 8, 13))
sketch3.addConstraint(Sketcher.Constraint("Equal", 13, 18))
sketch3.addConstraint(Sketcher.Constraint("Equal", 18, 23))
sketch3.addConstraint(Sketcher.Constraint("Equal", 32, 33))
sketch3.addConstraint(Sketcher.Constraint("Equal", 30, 35))
sketch3.addConstraint(Sketcher.Constraint("Equal", 23, 42))
sketch3.addConstraint(Sketcher.Constraint("Equal", 42, 47))
sketch3.addConstraint(Sketcher.Constraint("Equal", 47, 52))
sketch3.addConstraint(Sketcher.Constraint("Equal", 52, 57))
sketch3.addConstraint(Sketcher.Constraint("Equal", 1, 64))
sketch3.addConstraint(Sketcher.Constraint("Equal", 29, 36))
sketch3.addConstraint(Sketcher.Constraint("Radius", 4, 0.1))
sketch3.addConstraint(Sketcher.Constraint("DistanceY", 32, 1, 32, 2, 20.0))
sketch3.addConstraint(Sketcher.Constraint("Radius", 3, 0.02))
sketch3.addConstraint(Sketcher.Constraint("DistanceY", -1, 1, 0, 2, 49.0))
sketch3.addConstraint(Sketcher.Constraint("Radius", 5, 0.762))
sketch3.addConstraint(Sketcher.Constraint("DistanceY", -1, 1, 5, 3, 44.0))
sketch3.addConstraint(Sketcher.Constraint("DistanceY", -1, 1, 10, 3, 42.0))
sketch3.addConstraint(Sketcher.Constraint("DistanceX", 0, 2, 0, 1, 1.824))
sketch3.addConstraint(Sketcher.Constraint("DistanceX", -1, 1, 6, 2, 43.32))
sketch3.addConstraint(Sketcher.Constraint("Distance", 2, 0.865))
sketch3.addConstraint(Sketcher.Constraint("DistanceY", 1, 2, 1, 1, 3.7053))
sketch3.addConstraint(Sketcher.Constraint("DistanceY", 8, 2, 8, 1, 0.2882))
sketch3.addConstraint(Sketcher.Constraint("DistanceY", 30, 2, 30, 1, 5.7037))
sketch3.addConstraint(Sketcher.Constraint("DistanceY", -1, 1, 3, 1, 44.842))
sketch3.addConstraint(Sketcher.Constraint("DistanceY", -1, 1, 27, 1, 35.158))
sketch3.addConstraint(Sketcher.Constraint("DistanceY", -1, 1, 28, 1, 35.138))
sketch3.addConstraint(Sketcher.Constraint("DistanceY", -1, 1, 37, 1, 13.842))
sketch3.addConstraint(Sketcher.Constraint("DistanceY", -1, 1, 61, 1, 4.158))
pocket2 = body.newObject("PartDesign::Pocket", "Pocket001")
pocket2.Profile = sketch3
pocket2.Length = 6.2
doc.recompute()

fillet = body.newObject("PartDesign::Fillet", "Fillet")
fillet.Base = (pocket2, edges_at(pocket2, [
    (-0.1, 42.648, 45.295),
    (-0.1, 42.648, 34.704),
    (-0.1, 44.472, 29),
    (-0.1, 42.648, 29),
]))
fillet.Radius = 0.2
doc.recompute()

fillet2 = body.newObject("PartDesign::Fillet", "Fillet001")
fillet2.Base = (fillet, edges_at(fillet, [
    (-0.1, 42.648, 3.705),
    (-0.1, 42.648, 14.296),
    (-0.1, 42.648, 20),
    (-0.1, 44.472, 20),
]))
fillet2.Radius = 0.2
doc.recompute()

chamfer2 = body.newObject("PartDesign::Chamfer", "Chamfer001")
chamfer2.Base = (fillet2, edges_at(fillet2, [
    (-0.1, 44.472, 0),
    (-3.2, 43.56, 0),
    (-0.1, 42.648, 0),
    (-3.2, 43.56, 49),
    (-0.1, 44.472, 49),
    (-0.1, 42.648, 49),
]))
chamfer2.Size = 0.5

# Sketch on YZ plane
sketch4 = body.newObject("Sketcher::SketchObject", "Sketch003")
sketch4.AttachmentSupport = (doc.getObject("YZ_Plane"), [""])
sketch4.MapMode = "FlatFace"
sketch4.AttachmentOffset = App.Placement(V(0, 0, 3), App.Rotation())
add_polygon(sketch4, [(35.3, 0), (35.3, 49), (31.3, 49), (31.3, 0)])  # lines 0-3
sketch4.addConstraint(Sketcher.Constraint("Vertical", 0))
sketch4.addConstraint(Sketcher.Constraint("Horizontal", 1))
sketch4.addConstraint(Sketcher.Constraint("Vertical", 2))
sketch4.addConstraint(Sketcher.Constraint("Horizontal", 3))
sketch4.addConstraint(Sketcher.Constraint("PointOnObject", 2, 2, -1))
sketch4.addConstraint(Sketcher.Constraint("DistanceX", 1, 2, 1, 1, 4.0))
sketch4.addConstraint(Sketcher.Constraint("DistanceY", 0, 1, 0, 2, 49.0))
sketch4.addConstraint(Sketcher.Constraint("DistanceX", -1, 1, 0, 2, 35.2923))
pocket3 = body.newObject("PartDesign::Pocket", "Pocket002")
pocket3.Profile = sketch4
pocket3.Length = 6.2
doc.recompute()

chamfer3 = body.newObject("PartDesign::Chamfer", "Chamfer002")
chamfer3.Base = (pocket3, edges_at(pocket3, [
    (-0.1, 35.292, 0),
    (-3.2, 33.292, 0),
    (-0.1, 31.292, 0),
    (-0.1, 31.292, 49),
    (-3.2, 33.292, 49),
    (-0.1, 35.292, 49),
]))
chamfer3.Size = 0.5

# Sketch on XZ plane
sketch5 = body.newObject("Sketcher::SketchObject", "Sketch004")
sketch5.AttachmentSupport = (doc.getObject("XZ_Plane"), [""])
sketch5.MapMode = "FlatFace"
sketch5.AttachmentOffset = App.Placement(V(0, 0, -76.2), App.Rotation())
sketch5.addGeometry(Part.Circle(V(-16.5, 6.3, 0), V(0, 0, 1), 1.7), False)
sketch5.addGeometry(Part.Circle(V(-16.5, 42.6, 0), V(0, 0, 1), 1.7), False)
sketch5.addConstraint(Sketcher.Constraint("Equal", 0, 1))
sketch5.addConstraint(Sketcher.Constraint("Vertical", 0, 3, 1, 3))
sketch5.addConstraint(Sketcher.Constraint("Diameter", 0, 3.4))
sketch5.addConstraint(Sketcher.Constraint("DistanceY", 0, 3, 1, 3, 36.3))
sketch5.addConstraint(Sketcher.Constraint("DistanceX", 0, 3, -1, 1, 16.51))
sketch5.addConstraint(Sketcher.Constraint("DistanceY", -1, 1, 0, 3, 6.35))
doc.recompute()
hole = body.newObject("PartDesign::Hole", "Hole")
hole.Profile = sketch5
hole.ThreadType = "None"
hole.Diameter = 3.4
hole.DepthType = "Dimension"
hole.Depth = 10
hole.DrillPoint = "Angled"
hole.DrillPointAngle = 118
hole.Reversed = True
doc.recompute()

fillet3 = body.newObject("PartDesign::Fillet", "Fillet002")
fillet3.Base = (hole, edges_at(hole, [(-16.51, 76.2, 40.95), (-16.51, 76.2, 4.65)]))
fillet3.Radius = 0.2

# Sketch on YZ plane
sketch6 = body.newObject("Sketcher::SketchObject", "Sketch005")
sketch6.AttachmentSupport = (doc.getObject("YZ_Plane"), [""])
sketch6.MapMode = "FlatFace"
sketch6.AttachmentOffset = App.Placement(V(0, 0, -22.86), App.Rotation())
add_polygon(sketch6, [(69.2, 10.3), (69.2, 2.4), (66.7, 2.4), (66.7, 10.3)])  # lines 0-3
add_polygon(sketch6, [(66.7, 46.6), (69.2, 46.6), (69.2, 38.6), (66.7, 38.6)])  # lines 4-7
sketch6.addConstraint(Sketcher.Constraint("Vertical", 0))
sketch6.addConstraint(Sketcher.Constraint("Horizontal", 1))
sketch6.addConstraint(Sketcher.Constraint("Vertical", 2))
sketch6.addConstraint(Sketcher.Constraint("Horizontal", 3))
sketch6.addConstraint(Sketcher.Constraint("Horizontal", 4))
sketch6.addConstraint(Sketcher.Constraint("Vertical", 5))
sketch6.addConstraint(Sketcher.Constraint("Horizontal", 6))
sketch6.addConstraint(Sketcher.Constraint("Vertical", 7))
sketch6.addConstraint(Sketcher.Constraint("Vertical", 3, 2, 4, 2))
sketch6.addConstraint(Sketcher.Constraint("Vertical", 2, 2, 6, 2))
sketch6.addConstraint(Sketcher.Constraint("Equal", 2, 5))
sketch6.addConstraint(Sketcher.Constraint("DistanceY", 0, 2, 0, 1, 8.0))
sketch6.addConstraint(Sketcher.Constraint("DistanceX", 1, 2, 1, 1, 2.5))
sketch6.addConstraint(Sketcher.Constraint("DistanceX", -1, 1, 0, 2, 69.2))
sketch6.addConstraint(Sketcher.Constraint("DistanceY", 3, 2, 4, 2, 36.3))
sketch6.addConstraint(Sketcher.Constraint("DistanceY", -1, 1, 0, 2, 2.35))
pocket4 = body.newObject("PartDesign::Pocket", "Pocket003")
pocket4.Profile = sketch6
pocket4.Length = 13.35
pocket4.Reversed = True
doc.recompute()

fillet4 = body.newObject("PartDesign::Fillet", "Fillet003")
fillet4.Base = (pocket4, edges_at(pocket4, [
    (-16.51, 66.7, 40.95),
    (-16.51, 66.7, 4.65),
    (-16.51, 69.2, 40.95),
    (-16.51, 69.2, 4.65),
]))
fillet4.Radius = 0.2
doc.recompute()

chamfer4 = body.newObject("PartDesign::Chamfer", "Chamfer003")
chamfer4.Base = (fillet4, edges_at(fillet4, [
    (-22.86, 69.2, 6.35),
    (-22.86, 67.95, 10.35),
    (-22.86, 66.7, 6.35),
    (-22.86, 67.95, 2.35),
    (-22.86, 69.2, 42.65),
    (-22.86, 67.95, 38.65),
    (-22.86, 66.7, 42.65),
    (-22.86, 67.95, 46.65),
]))
chamfer4.Size = 0.5

# Sketch on YZ plane
sketch7 = body.newObject("Sketcher::SketchObject", "Sketch006")
sketch7.AttachmentSupport = (doc.getObject("YZ_Plane"), [""])
sketch7.MapMode = "FlatFace"
sketch7.AttachmentOffset = App.Placement(V(0, 0, -22.86), App.Rotation())
sketch7.addGeometry(Part.Circle(V(26.3, 5, 0), V(0, 0, 1), 1.7), False)
sketch7.addGeometry(Part.Circle(V(26.3, 44, 0), V(0, 0, 1), 1.7), False)
sketch7.addConstraint(Sketcher.Constraint("Equal", 0, 1))
sketch7.addConstraint(Sketcher.Constraint("Vertical", 0, 3, 1, 3))
sketch7.addConstraint(Sketcher.Constraint("Diameter", 0, 3.4))
sketch7.addConstraint(Sketcher.Constraint("DistanceY", -1, 1, 0, 3, 5.0))
sketch7.addConstraint(Sketcher.Constraint("DistanceY", -1, 1, 1, 3, 44.0))
sketch7.addConstraint(Sketcher.Constraint("DistanceX", -1, 1, 0, 3, 26.2923))
doc.recompute()
hole2 = body.newObject("PartDesign::Hole", "Hole001")
hole2.Profile = sketch7
hole2.ThreadType = "None"
hole2.Diameter = 3.4
hole2.DepthType = "Dimension"
hole2.Depth = 25.86
hole2.DrillPoint = "Flat"
hole2.HoleCutType = "Counterbore"
hole2.HoleCutDiameter = 6.5
hole2.HoleCutDepth = 18
hole2.Reversed = True

doc.recompute()
